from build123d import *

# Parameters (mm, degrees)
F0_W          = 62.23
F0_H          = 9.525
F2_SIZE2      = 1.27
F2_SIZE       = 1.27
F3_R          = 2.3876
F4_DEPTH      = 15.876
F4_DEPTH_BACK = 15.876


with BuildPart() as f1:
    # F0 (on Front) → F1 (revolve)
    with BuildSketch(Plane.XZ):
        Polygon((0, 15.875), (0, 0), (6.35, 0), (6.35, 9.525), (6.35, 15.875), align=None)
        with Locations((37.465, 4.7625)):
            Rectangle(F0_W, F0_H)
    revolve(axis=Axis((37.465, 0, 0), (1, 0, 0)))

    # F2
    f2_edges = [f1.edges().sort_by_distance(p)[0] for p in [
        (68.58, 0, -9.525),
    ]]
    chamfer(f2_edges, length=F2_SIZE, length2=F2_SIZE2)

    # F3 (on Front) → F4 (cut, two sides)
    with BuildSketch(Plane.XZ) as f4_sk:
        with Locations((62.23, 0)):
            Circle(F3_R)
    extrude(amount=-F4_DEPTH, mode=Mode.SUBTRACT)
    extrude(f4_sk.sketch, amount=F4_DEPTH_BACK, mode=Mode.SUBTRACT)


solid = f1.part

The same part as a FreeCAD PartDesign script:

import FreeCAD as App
import Part
import Sketcher

V = App.Vector
Q = App.Units.Quantity


def edges_at(feature, points):
    """Names of the edges that pass closest to the given points."""
    edges = feature.Shape.Edges
    near = lambda p: min(range(len(edges)), key=lambda i: edges[i].distToShape(Part.Vertex(*p))[0])
    return sorted({f"Edge{near(p) + 1}" for p in points})


def add_polygon(sketch, points):
    """Adds a closed chain of lines whose ends are joined by coincident constraints."""
    first, n = sketch.GeometryCount, len(points)
    for a, b in zip(points, points[1:] + points[:1]):
        sketch.addGeometry(Part.LineSegment(App.Vector(*a, 0), App.Vector(*b, 0)), False)
    for i in range(n):
        sketch.addConstraint(Sketcher.Constraint("Coincident", first + i, 2, first + (i + 1) % n, 1))

doc = App.newDocument("Part")
body = doc.addObject("PartDesign::Body", "Body")

sketch1 = doc.addObject("Sketcher::SketchObject", "Sketch")
body.addObject(sketch1)
sketch1.AttachmentSupport = (doc.XZ_Plane, [""])
sketch1.MapMode = "FlatFace"
add_polygon(sketch1, [(0, 16), (0, 0), (69, 0), (69, 10), (6, 10), (6, 16)])
sketch1.addConstraint(Sketcher.Constraint("Vertical", 0))
sketch1.addConstraint(Sketcher.Constraint("Horizontal", 1))
sketch1.addConstraint(Sketcher.Constraint("Vertical", 2))
sketch1.addConstraint(Sketcher.Constraint("Horizontal", 3))
sketch1.addConstraint(Sketcher.Constraint("Vertical", 4))
sketch1.addConstraint(Sketcher.Constraint("Horizontal", 5))
sketch1.addConstraint(Sketcher.Constraint("Coincident", 0, 2, -1, 1))
sketch1.addConstraint(Sketcher.Constraint("Equal", 5, 4))
sketch1.addConstraint(Sketcher.Constraint("DistanceX", 1, 1, 1, 2, Q("2.7 in")))
sketch1.addConstraint(Sketcher.Constraint("DistanceX", 3, 2, 3, 1, Q("2.45 in")))
sketch1.addConstraint(Sketcher.Constraint("DistanceY", 0, 2, 0, 1, Q("0.625 in")))
revolution = doc.addObject("PartDesign::Revolution", "Revolution")
body.addObject(revolution)
revolution.Profile = sketch1
revolution.ReferenceAxis = (sketch1, ["H_Axis"])
revolution.Angle = 360
doc.recompute()

chamfer = doc.addObject("PartDesign::Chamfer", "Chamfer")
body.addObject(chamfer)
chamfer.Base = (revolution, edges_at(revolution, [(68.58, 0, -9.525)]))
chamfer.ChamferType = "Two distances"
chamfer.Size = Q("0.05 in")
chamfer.Size2 = Q("0.05 in")

sketch2 = doc.addObject("Sketcher::SketchObject", "Sketch001")
body.addObject(sketch2)
sketch2.AttachmentSupport = (doc.XZ_Plane, [""])
sketch2.MapMode = "FlatFace"
sketch2.addGeometry(Part.Circle(V(62.2, 0, 0), V(0, 0, 1), 2.4), False)
sketch2.addConstraint(Sketcher.Constraint("PointOnObject", 0, 3, -1))
sketch2.addConstraint(Sketcher.Constraint("Diameter", 0, Q("0.188 in")))
sketch2.addConstraint(Sketcher.Constraint("DistanceX", -1, 1, 0, 3, Q("2.45 in")))
pocket1 = doc.addObject("PartDesign::Pocket", "Pocket")
body.addObject(pocket1)
pocket1.Profile = sketch2
pocket1.Type = "ThroughAll"
pocket1.Midplane = True

doc.recompute()
